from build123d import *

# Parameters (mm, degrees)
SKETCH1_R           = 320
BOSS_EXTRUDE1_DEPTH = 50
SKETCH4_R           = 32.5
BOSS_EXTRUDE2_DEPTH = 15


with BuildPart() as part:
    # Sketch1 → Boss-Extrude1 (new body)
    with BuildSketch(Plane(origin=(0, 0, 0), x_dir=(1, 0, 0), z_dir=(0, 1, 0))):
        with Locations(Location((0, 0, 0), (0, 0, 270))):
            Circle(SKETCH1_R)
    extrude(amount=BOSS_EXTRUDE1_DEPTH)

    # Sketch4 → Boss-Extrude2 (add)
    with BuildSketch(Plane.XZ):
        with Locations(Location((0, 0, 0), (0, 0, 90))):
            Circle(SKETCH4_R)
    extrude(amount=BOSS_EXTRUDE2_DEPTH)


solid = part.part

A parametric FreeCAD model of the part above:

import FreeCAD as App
import Part
import Sketcher

V = App.Vector
Q = App.Units.Quantity

doc = App.newDocument("Part")
body = doc.addObject("PartDesign::Body", "Body")

# Sketch on XZ plane
sketch1 = body.newObject("Sketcher::SketchObject", "Sketch")
sketch1.AttachmentSupport = (doc.getObject("XZ_Plane"), [""])
sketch1.MapMode = "FlatFace"
sketch1.addGeometry(Part.Circle(V(0, 0, 0), V(0, 0, 1), 320), False)
sketch1.addConstraint([
    Sketcher.Constraint("Coincident", 0, 3, -1, 1),
    Sketcher.Constraint("Diameter", 0, Q("640 mm")),
])
pad1 = body.newObject("PartDesign::Pad", "Pad")
pad1.Profile = sketch1
pad1.Length = 50
pad1.Reversed = True

# Sketch on XZ plane
sketch2 = body.newObject("Sketcher::SketchObject", "Sketch001")
sketch2.AttachmentSupport = (doc.getObject("XZ_Plane"), [""])
sketch2.MapMode = "FlatFace"
sketch2.addGeometry(Part.Circle(V(0, 0, 0), V(0, 0, 1), 32), False)
sketch2.addConstraint([
    Sketcher.Constraint("Coincident", 0, 3, -1, 1),
    Sketcher.Constraint("Diameter", 0, Q("65 mm")),
])
pad2 = body.newObject("PartDesign::Pad", "Pad001")
pad2.Profile = sketch2
pad2.Length = 15

doc.recompute()
